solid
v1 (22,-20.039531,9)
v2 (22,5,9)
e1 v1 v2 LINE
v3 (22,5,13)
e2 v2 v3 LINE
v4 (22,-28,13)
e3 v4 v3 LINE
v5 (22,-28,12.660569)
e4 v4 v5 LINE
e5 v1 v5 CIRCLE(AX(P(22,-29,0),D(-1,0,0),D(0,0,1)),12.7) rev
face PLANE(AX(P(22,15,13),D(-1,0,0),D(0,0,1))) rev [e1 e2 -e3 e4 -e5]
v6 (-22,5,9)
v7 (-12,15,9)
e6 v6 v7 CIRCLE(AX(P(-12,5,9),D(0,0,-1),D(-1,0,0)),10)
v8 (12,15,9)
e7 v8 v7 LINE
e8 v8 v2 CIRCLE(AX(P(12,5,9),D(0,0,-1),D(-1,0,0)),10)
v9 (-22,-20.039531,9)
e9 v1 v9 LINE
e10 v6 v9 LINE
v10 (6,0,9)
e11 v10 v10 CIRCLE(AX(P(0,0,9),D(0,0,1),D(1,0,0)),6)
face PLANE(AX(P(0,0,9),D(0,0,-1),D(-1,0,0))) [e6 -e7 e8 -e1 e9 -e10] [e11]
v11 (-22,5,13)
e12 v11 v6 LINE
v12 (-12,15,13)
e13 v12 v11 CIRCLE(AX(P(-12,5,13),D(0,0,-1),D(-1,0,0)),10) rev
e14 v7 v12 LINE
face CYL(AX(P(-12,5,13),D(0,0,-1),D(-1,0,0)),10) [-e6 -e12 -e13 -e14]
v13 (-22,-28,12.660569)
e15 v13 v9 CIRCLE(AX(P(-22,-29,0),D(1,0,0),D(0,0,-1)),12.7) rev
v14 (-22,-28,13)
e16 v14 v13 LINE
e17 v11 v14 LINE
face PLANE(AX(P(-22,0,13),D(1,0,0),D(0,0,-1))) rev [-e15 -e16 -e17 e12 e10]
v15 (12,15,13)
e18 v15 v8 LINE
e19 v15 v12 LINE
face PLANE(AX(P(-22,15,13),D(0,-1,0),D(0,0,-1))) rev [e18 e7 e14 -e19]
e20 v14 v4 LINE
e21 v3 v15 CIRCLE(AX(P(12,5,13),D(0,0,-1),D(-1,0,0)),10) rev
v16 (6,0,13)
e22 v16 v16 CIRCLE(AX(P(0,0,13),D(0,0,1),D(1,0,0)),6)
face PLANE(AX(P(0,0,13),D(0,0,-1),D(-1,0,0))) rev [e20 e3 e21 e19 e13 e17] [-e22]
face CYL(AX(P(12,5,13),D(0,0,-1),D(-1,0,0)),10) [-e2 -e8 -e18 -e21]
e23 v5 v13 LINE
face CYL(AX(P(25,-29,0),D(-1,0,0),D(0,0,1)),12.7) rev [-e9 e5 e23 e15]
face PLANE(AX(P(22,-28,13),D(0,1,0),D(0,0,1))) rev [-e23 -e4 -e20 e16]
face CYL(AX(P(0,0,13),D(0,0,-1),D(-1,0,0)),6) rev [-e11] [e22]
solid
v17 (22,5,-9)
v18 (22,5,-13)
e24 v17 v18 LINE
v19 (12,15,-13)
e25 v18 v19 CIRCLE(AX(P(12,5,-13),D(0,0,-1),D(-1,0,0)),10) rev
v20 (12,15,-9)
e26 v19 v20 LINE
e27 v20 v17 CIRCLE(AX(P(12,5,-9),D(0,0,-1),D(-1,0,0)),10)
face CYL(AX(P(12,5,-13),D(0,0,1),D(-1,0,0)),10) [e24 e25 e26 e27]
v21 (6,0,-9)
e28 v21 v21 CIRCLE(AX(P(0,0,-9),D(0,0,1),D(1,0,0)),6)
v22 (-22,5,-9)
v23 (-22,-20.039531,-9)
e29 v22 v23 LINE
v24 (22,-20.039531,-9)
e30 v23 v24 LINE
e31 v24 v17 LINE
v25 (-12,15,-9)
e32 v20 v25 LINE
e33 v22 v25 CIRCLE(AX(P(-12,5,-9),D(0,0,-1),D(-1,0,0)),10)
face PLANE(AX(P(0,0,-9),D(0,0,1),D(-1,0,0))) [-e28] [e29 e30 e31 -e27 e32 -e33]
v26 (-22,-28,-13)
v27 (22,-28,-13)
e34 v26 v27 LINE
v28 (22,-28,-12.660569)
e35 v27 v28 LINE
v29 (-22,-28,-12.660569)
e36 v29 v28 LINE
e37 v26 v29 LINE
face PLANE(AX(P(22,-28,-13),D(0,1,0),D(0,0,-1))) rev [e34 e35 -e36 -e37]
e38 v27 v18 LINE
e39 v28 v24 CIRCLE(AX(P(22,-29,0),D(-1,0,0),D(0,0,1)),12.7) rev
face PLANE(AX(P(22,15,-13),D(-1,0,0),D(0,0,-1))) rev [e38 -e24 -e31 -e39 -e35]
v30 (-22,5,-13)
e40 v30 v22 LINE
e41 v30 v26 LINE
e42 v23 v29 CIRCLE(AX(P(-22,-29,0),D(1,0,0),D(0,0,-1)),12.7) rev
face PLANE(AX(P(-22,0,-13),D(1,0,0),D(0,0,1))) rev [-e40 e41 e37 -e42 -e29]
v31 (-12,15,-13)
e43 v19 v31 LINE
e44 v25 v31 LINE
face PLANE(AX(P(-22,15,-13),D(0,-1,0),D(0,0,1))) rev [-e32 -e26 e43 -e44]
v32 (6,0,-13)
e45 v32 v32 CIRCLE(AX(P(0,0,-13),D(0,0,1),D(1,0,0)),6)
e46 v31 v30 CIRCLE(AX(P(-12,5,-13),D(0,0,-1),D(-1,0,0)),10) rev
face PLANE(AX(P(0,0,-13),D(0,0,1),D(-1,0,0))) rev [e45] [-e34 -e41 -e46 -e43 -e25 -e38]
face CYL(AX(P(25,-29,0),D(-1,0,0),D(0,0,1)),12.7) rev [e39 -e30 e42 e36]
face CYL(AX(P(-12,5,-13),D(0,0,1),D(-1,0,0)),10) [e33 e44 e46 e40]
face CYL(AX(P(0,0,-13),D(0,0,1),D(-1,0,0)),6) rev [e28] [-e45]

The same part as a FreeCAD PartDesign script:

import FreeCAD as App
import Part
import Sketcher
from FreeCAD import Vector
Q = App.Units.Quantity


def edges_at(feature, points):
    """Names of the edges that pass closest to the given points."""
    edges = feature.Shape.Edges
    near = lambda p: min(range(len(edges)), key=lambda i: edges[i].distToShape(Part.Vertex(*p))[0])
    return sorted({f"Edge{near(p) + 1}" for p in points})

doc = App.newDocument("Part")
body = doc.addObject("PartDesign::Body", "Body")

# Sketch on XY plane
sketch1 = body.newObject("Sketcher::SketchObject", "Sketch")
sketch1.AttachmentSupport = (doc.getObject("XY_Plane"), [""])
sketch1.MapMode = "FlatFace"
sketch1.AttachmentOffset = App.Placement(Vector(0, 0, 9), App.Rotation())
sketch1.addGeometry(Part.LineSegment(Vector(-22, 15, 0), Vector(-22, -28, 0)), False)
sketch1.addGeometry(Part.LineSegment(Vector(-22, -28, 0), Vector(22, -28, 0)), False)
sketch1.addGeometry(Part.LineSegment(Vector(22, -28, 0), Vector(22, 15, 0)), False)
sketch1.addGeometry(Part.LineSegment(Vector(22, 15, 0), Vector(-22, 15, 0)), False)
sketch1.addGeometry(Part.Circle(Vector(0, 0, 0), Vector(0, 0, 1), 6), False)
sketch1.addConstraint(Sketcher.Constraint("Coincident", 0, 2, 1, 1))
sketch1.addConstraint(Sketcher.Constraint("Coincident", 1, 2, 2, 1))
sketch1.addConstraint(Sketcher.Constraint("Coincident", 2, 2, 3, 1))
sketch1.addConstraint(Sketcher.Constraint("Coincident", 3, 2, 0, 1))
sketch1.addConstraint(Sketcher.Constraint("Vertical", 0))
sketch1.addConstraint(Sketcher.Constraint("Horizontal", 1))
sketch1.addConstraint(Sketcher.Constraint("Vertical", 2))
sketch1.addConstraint(Sketcher.Constraint("Horizontal", 3))
sketch1.addConstraint(Sketcher.Constraint("Coincident", 4, 3, -1, 1))
sketch1.addConstraint(Sketcher.Constraint("Diameter", 4, Q("12 mm")))
sketch1.addConstraint(Sketcher.Constraint("DistanceX", 1, 1, 1, 2, Q("44 mm")))
sketch1.addConstraint(Sketcher.Constraint("DistanceY", 0, 2, 0, 1, Q("43 mm")))
sketch1.addConstraint(Sketcher.Constraint("DistanceX", 0, 2, -1, 1, Q("22 mm")))
sketch1.addConstraint(Sketcher.Constraint("DistanceY", 0, 2, -1, 1, Q("28 mm")))
pad1 = body.newObject("PartDesign::Pad", "Pad")
pad1.Profile = sketch1
pad1.Length = 4
doc.recompute()

fillet = body.newObject("PartDesign::Fillet", "Fillet")
fillet.Base = (pad1, edges_at(pad1, [(-22, 15, 11), (22, 15, 11)]))
fillet.Radius = 10
body2 = doc.addObject("PartDesign::Body", "Body001")
doc.recompute()

mirroring = doc.addObject("Part::Mirroring", "Mirroring")
mirroring.Source = body
mirroring.Base = Vector(0, 0, 0)
mirroring.Normal = Vector(0, 0, 1)
body2.BaseFeature = mirroring
doc.recompute()
body3 = doc.addObject("PartDesign::Body", "Body002")

# Sketch on YZ plane
sketch2 = body3.newObject("Sketcher::SketchObject", "Sketch001")
sketch2.AttachmentSupport = (doc.getObject("YZ_Plane002"), [""])
sketch2.MapMode = "FlatFace"
sketch2.addGeometry(Part.Circle(Vector(-29, 0, 0), Vector(0, 0, 1), 13), False)
sketch2.addConstraint(Sketcher.Constraint("PointOnObject", 0, 3, -1))
sketch2.addConstraint(Sketcher.Constraint("Diameter", 0, Q("25.4 mm")))
sketch2.addConstraint(Sketcher.Constraint("DistanceX", 0, 3, -1, 1, Q("29 mm")))
pad2 = body3.newObject("PartDesign::Pad", "Pad001")
pad2.Profile = sketch2
pad2.Type = "TwoLengths"
pad2.Length = 25
pad2.Length2 = 25
doc.recompute()

body4 = doc.addObject("PartDesign::Body", "Body003")
body4.BaseFeature = body3
boolean = body.newObject("PartDesign::Boolean", "Boolean")
boolean.Type = "Cut"
boolean.addObjects([body4])
doc.recompute()

boolean2 = body2.newObject("PartDesign::Boolean", "Boolean001")
boolean2.Type = "Cut"
boolean2.addObjects([body3])
mirroring.Visibility = False

doc.recompute()
